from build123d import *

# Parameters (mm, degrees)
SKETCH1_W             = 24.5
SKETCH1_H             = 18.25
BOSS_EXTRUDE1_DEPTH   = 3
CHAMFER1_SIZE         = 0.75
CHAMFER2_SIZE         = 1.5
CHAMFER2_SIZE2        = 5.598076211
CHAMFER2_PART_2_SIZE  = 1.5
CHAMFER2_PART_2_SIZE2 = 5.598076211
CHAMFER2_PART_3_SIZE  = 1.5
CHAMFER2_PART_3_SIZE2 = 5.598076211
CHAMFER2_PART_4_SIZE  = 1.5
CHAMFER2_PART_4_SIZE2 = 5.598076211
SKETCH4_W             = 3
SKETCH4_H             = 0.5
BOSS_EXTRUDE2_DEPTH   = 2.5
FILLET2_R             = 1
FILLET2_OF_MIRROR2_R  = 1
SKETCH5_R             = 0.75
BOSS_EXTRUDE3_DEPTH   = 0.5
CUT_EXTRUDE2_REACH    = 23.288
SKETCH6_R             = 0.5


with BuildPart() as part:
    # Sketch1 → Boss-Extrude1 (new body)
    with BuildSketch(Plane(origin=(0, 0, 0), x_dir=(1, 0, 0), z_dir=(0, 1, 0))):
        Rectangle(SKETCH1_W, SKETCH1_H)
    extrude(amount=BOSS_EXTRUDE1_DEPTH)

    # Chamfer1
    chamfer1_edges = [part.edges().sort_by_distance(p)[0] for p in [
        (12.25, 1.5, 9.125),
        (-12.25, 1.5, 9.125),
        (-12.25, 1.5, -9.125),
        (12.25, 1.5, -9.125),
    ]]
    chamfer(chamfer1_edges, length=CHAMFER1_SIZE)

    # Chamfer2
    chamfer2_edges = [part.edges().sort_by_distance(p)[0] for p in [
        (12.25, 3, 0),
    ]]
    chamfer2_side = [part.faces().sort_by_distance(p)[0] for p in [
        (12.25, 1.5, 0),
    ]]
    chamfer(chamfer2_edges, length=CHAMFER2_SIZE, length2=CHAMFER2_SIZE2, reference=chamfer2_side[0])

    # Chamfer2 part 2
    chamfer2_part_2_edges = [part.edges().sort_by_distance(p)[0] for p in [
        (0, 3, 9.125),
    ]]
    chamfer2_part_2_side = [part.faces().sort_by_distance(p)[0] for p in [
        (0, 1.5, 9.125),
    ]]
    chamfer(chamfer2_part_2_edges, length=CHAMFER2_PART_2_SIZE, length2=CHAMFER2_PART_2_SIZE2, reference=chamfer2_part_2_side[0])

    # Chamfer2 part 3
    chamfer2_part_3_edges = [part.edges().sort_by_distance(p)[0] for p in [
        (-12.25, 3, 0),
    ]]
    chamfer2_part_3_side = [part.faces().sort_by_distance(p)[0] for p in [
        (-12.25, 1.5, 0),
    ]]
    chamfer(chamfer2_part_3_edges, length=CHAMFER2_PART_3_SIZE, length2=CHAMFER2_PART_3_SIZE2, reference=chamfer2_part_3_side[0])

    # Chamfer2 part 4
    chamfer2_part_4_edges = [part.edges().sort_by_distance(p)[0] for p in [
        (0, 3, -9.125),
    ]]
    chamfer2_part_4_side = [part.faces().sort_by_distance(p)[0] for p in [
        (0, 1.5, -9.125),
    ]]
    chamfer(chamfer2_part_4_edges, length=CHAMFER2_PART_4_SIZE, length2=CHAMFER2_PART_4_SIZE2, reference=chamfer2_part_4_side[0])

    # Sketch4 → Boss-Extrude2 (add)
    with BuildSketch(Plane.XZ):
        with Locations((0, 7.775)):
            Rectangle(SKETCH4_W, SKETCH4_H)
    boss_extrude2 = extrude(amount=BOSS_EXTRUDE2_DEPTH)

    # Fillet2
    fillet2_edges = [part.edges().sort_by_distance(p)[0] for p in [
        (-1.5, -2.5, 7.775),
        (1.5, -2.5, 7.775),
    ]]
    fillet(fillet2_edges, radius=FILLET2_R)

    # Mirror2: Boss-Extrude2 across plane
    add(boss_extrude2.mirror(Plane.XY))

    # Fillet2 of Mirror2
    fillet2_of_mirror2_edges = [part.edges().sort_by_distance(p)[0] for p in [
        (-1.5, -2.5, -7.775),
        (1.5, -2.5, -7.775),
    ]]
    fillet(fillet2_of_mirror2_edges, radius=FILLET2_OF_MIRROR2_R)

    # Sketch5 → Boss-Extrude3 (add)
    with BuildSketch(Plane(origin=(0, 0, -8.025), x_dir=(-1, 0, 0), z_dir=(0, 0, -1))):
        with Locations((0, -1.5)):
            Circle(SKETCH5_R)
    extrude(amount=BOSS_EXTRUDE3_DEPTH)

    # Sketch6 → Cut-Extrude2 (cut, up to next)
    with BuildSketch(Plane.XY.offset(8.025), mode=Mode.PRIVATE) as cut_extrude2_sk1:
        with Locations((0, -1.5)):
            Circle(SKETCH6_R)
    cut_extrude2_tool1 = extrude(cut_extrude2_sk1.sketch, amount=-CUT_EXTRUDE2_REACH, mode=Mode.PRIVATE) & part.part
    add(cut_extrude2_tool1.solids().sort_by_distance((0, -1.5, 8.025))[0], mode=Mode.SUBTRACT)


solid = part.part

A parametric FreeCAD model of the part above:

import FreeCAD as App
import Part
import Sketcher

V = App.Vector


def edges_at(feature, points):
    """Names of the edges that pass closest to the given points."""
    edges = feature.Shape.Edges
    near = lambda p: min(range(len(edges)), key=lambda i: edges[i].distToShape(Part.Vertex(*p))[0])
    return sorted({f"Edge{near(p) + 1}" for p in points})


def add_polygon(sketch, points):
    """Adds a closed chain of lines whose ends are joined by coincident constraints."""
    first, n = sketch.GeometryCount, len(points)
    for a, b in zip(points, points[1:] + points[:1]):
        sketch.addGeometry(Part.LineSegment(App.Vector(*a, 0), App.Vector(*b, 0)), False)
    for i in range(n):
        sketch.addConstraint(Sketcher.Constraint("Coincident", first + i, 2, first + (i + 1) % n, 1))

doc = App.newDocument("Part")
body = doc.addObject("PartDesign::Body", "Body")

sketch1 = body.newObject("Sketcher::SketchObject", "Sketch")
sketch1.AttachmentSupport = (doc.getObject("XZ_Plane"), [""])
sketch1.MapMode = "FlatFace"
add_polygon(sketch1, [(-12.25, -9.125), (-12.25, 9.125), (12.25, 9.125), (12.25, -9.125)])
sketch1.addConstraint([
    Sketcher.Constraint("Vertical", 0),
    Sketcher.Constraint("Horizontal", 1),
    Sketcher.Constraint("Vertical", 2),
    Sketcher.Constraint("Horizontal", 3),
    Sketcher.Constraint("Symmetric", 0, 2, 2, 2, -1, 1),
    Sketcher.Constraint("DistanceX", 1, 1, 1, 2, 24.5),
    Sketcher.Constraint("DistanceY", 0, 1, 0, 2, 18.25),
])
pad1 = body.newObject("PartDesign::Pad", "Pad")
pad1.Profile = sketch1
pad1.Length = 3
pad1.Reversed = True
doc.recompute()

chamfer = body.newObject("PartDesign::Chamfer", "Chamfer")
chamfer.Base = (pad1, edges_at(pad1, [
    (12.25, 1.5, 9.125),
    (-12.25, 1.5, 9.125),
    (-12.25, 1.5, -9.125),
    (12.25, 1.5, -9.125),
]))
chamfer.Size = 0.75
doc.recompute()

chamfer2 = body.newObject("PartDesign::Chamfer", "Chamfer001")
chamfer2.Base = (chamfer, edges_at(chamfer, [(12.25, 3, 0)]))
chamfer2.ChamferType = "Two distances"
chamfer2.Size = 1.5
chamfer2.Size2 = 5.598076
chamfer2.FlipDirection = True
doc.recompute()

chamfer3 = body.newObject("PartDesign::Chamfer", "Chamfer002")
chamfer3.Base = (chamfer2, edges_at(chamfer2, [(-2.424, 3, 9.125)]))
chamfer3.ChamferType = "Two distances"
chamfer3.Size = 1.5
chamfer3.Size2 = 5.598076
chamfer3.FlipDirection = True
doc.recompute()

chamfer4 = body.newObject("PartDesign::Chamfer", "Chamfer003")
chamfer4.Base = (chamfer3, edges_at(chamfer3, [(-12.25, 3, -2.424)]))
chamfer4.ChamferType = "Two distances"
chamfer4.Size = 1.5
chamfer4.Size2 = 5.598076
chamfer4.FlipDirection = True
doc.recompute()

chamfer5 = body.newObject("PartDesign::Chamfer", "Chamfer004")
chamfer5.Base = (chamfer4, edges_at(chamfer4, [(0, 3, -9.125)]))
chamfer5.ChamferType = "Two distances"
chamfer5.Size = 1.5
chamfer5.Size2 = 5.598076
chamfer5.FlipDirection = True

sketch2 = body.newObject("Sketcher::SketchObject", "Sketch001")
sketch2.AttachmentSupport = (doc.getObject("XZ_Plane"), [""])
sketch2.MapMode = "FlatFace"
add_polygon(sketch2, [(-1.5, 8.025), (-1.5, 7.525), (1.5, 7.525), (1.5, 8.025)])
sketch2.addConstraint([
    Sketcher.Constraint("Vertical", 0),
    Sketcher.Constraint("Horizontal", 1),
    Sketcher.Constraint("Vertical", 2),
    Sketcher.Constraint("Horizontal", 3),
    Sketcher.Constraint("DistanceX", 1, 1, 1, 2, 3.0),
    Sketcher.Constraint("DistanceY", 0, 2, 0, 1, 0.5),
    Sketcher.Constraint("DistanceX", 0, 2, -1, 1, 1.5),
    Sketcher.Constraint("DistanceY", -1, 1, 0, 2, 7.525),
])
pad2 = body.newObject("PartDesign::Pad", "Pad001")
pad2.Profile = sketch2
pad2.Length = 2.5
doc.recompute()

fillet = body.newObject("PartDesign::Fillet", "Fillet")
fillet.Base = (pad2, edges_at(pad2, [(-1.5, -2.5, 7.775), (1.5, -2.5, 7.775)]))
fillet.Radius = 1
doc.recompute()

mirrored = body.newObject("PartDesign::Mirrored", "Mirrored")
mirrored.Originals = [pad2]
mirrored.MirrorPlane = (doc.getObject("XY_Plane"), [""])
body.Tip = mirrored
doc.recompute()

fillet2 = body.newObject("PartDesign::Fillet", "Fillet001")
fillet2.Base = (mirrored, edges_at(mirrored, [(-1.5, -2.5, -7.775), (1.5, -2.5, -7.775)]))
fillet2.Radius = 1

sketch3 = body.newObject("Sketcher::SketchObject", "Sketch002")
sketch3.AttachmentSupport = (doc.getObject("XY_Plane"), [""])
sketch3.MapMode = "FlatFace"
sketch3.AttachmentOffset = App.Placement(V(0, 0, -8.025), App.Rotation())
sketch3.addGeometry(Part.Circle(V(0, -1.5, 0), V(0, 0, 1), 0.75), False)
sketch3.addConstraint([
    Sketcher.Constraint("PointOnObject", 0, 3, -2),
    Sketcher.Constraint("Diameter", 0, 1.5),
    Sketcher.Constraint("DistanceY", 0, 3, -1, 1, 1.5),
])
pad3 = body.newObject("PartDesign::Pad", "Pad002")
pad3.Profile = sketch3
pad3.Length = 0.5
pad3.Reversed = True

sketch4 = body.newObject("Sketcher::SketchObject", "Sketch003")
sketch4.AttachmentSupport = (doc.getObject("XY_Plane"), [""])
sketch4.MapMode = "FlatFace"
sketch4.AttachmentOffset = App.Placement(V(0, 0, 8.025), App.Rotation())
sketch4.addGeometry(Part.Circle(V(0, -1.5, 0), V(0, 0, 1), 0.5), False)
sketch4.addConstraint([
    Sketcher.Constraint("PointOnObject", 0, 3, -2),
    Sketcher.Constraint("Diameter", 0, 1.0),
    Sketcher.Constraint("DistanceY", 0, 3, -1, 1, 1.5),
])
pocket1 = body.newObject("PartDesign::Pocket", "Pocket")
pocket1.Profile = sketch4
pocket1.Type = "UpToFirst"

doc.recompute()
